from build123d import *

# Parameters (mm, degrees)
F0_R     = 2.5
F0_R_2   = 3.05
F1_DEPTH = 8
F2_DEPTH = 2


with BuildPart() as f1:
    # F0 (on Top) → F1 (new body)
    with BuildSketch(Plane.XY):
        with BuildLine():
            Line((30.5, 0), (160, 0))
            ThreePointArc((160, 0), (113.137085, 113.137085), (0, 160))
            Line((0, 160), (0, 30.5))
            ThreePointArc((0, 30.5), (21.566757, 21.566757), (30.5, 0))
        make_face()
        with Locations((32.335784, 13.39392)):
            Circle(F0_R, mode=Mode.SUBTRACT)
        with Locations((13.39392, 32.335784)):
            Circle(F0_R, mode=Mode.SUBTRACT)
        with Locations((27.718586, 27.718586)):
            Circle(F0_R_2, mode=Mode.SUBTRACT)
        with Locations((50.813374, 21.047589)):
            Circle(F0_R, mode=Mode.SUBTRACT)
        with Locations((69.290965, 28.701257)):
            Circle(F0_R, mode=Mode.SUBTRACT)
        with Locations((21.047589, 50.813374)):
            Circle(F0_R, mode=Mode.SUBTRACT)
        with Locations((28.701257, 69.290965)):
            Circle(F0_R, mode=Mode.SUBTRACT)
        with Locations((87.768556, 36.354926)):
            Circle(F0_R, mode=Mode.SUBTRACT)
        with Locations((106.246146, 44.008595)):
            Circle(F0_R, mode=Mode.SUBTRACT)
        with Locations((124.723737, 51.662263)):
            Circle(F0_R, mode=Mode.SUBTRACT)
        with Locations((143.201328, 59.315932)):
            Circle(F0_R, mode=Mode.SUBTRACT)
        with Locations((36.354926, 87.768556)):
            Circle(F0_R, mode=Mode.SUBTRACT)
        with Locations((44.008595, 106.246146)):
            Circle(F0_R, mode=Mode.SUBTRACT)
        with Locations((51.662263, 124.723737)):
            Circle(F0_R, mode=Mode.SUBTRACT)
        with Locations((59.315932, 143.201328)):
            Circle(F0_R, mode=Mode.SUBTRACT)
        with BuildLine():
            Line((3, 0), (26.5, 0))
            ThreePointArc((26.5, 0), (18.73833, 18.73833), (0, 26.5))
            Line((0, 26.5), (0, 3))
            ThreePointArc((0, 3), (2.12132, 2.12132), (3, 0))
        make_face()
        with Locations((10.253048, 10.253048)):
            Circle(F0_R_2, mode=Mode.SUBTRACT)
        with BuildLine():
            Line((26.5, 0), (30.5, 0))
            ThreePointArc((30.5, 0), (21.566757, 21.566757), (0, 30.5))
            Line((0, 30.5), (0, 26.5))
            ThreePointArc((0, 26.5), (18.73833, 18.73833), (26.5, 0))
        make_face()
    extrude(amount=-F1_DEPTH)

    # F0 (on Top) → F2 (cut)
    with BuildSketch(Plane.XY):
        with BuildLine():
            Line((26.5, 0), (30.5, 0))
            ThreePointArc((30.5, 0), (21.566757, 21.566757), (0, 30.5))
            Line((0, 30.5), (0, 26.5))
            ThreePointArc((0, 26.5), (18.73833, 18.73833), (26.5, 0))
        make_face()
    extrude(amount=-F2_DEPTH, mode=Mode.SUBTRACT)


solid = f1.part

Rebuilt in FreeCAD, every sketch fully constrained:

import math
import FreeCAD as App
import Part
import Sketcher
Q = App.Units.Quantity

doc = App.newDocument("Part")
body = doc.addObject("PartDesign::Body", "Body")

sketch1 = body.newObject("Sketcher::SketchObject", "Sketch")
sketch1.AttachmentSupport = (doc.getObject("XY_Plane"), [""])
sketch1.MapMode = "FlatFace"
sketch1.addGeometry([
    Part.ArcOfCircle(Part.Circle(App.Vector(0, 0, 0), App.Vector(0, 0, 1), 160), math.radians(0), math.radians(90)),
    Part.LineSegment(App.Vector(0, 160, 0), App.Vector(0, 3, 0)),
    Part.ArcOfCircle(Part.Circle(App.Vector(0, 0, 0), App.Vector(0, 0, 1), 3), math.radians(0), math.radians(90)),
    Part.LineSegment(App.Vector(3, 0, 0), App.Vector(160, 0, 0)),
    Part.Circle(App.Vector(27.7, 27.7, 0), App.Vector(0, 0, 1), 3),
    Part.Circle(App.Vector(32.3, 13.4, 0), App.Vector(0, 0, 1), 2.5),
    Part.Circle(App.Vector(13.4, 32.3, 0), App.Vector(0, 0, 1), 2.5),
    Part.Circle(App.Vector(50.8, 21, 0), App.Vector(0, 0, 1), 2.5),
    Part.Circle(App.Vector(69.3, 28.7, 0), App.Vector(0, 0, 1), 2.5),
    Part.Circle(App.Vector(21, 50.8, 0), App.Vector(0, 0, 1), 2.5),
    Part.Circle(App.Vector(28.7, 69.3, 0), App.Vector(0, 0, 1), 2.5),
    Part.Circle(App.Vector(87.8, 36.4, 0), App.Vector(0, 0, 1), 2.5),
    Part.Circle(App.Vector(106.2, 44, 0), App.Vector(0, 0, 1), 2.5),
    Part.Circle(App.Vector(124.7, 51.7, 0), App.Vector(0, 0, 1), 2.5),
    Part.Circle(App.Vector(143.2, 59.3, 0), App.Vector(0, 0, 1), 2.5),
    Part.Circle(App.Vector(36.4, 87.8, 0), App.Vector(0, 0, 1), 2.5),
    Part.Circle(App.Vector(44, 106.2, 0), App.Vector(0, 0, 1), 2.5),
    Part.Circle(App.Vector(51.7, 124.7, 0), App.Vector(0, 0, 1), 2.5),
    Part.Circle(App.Vector(59.3, 143.2, 0), App.Vector(0, 0, 1), 2.5),
    Part.Circle(App.Vector(10.3, 10.3, 0), App.Vector(0, 0, 1), 3),
], False)
sketch1.addConstraint([
    Sketcher.Constraint("Coincident", 0, 2, 1, 1),
    Sketcher.Constraint("Coincident", 1, 2, 2, 2),
    Sketcher.Constraint("Coincident", 2, 1, 3, 1),
    Sketcher.Constraint("Coincident", 3, 2, 0, 1),
    Sketcher.Constraint("Vertical", 1),
    Sketcher.Constraint("Horizontal", 3),
    Sketcher.Constraint("Coincident", 0, 3, -1, 1),
    Sketcher.Constraint("Coincident", 2, 3, -1, 1),
    Sketcher.Constraint("Equal", 5, 6),
    Sketcher.Constraint("Equal", 6, 7),
    Sketcher.Constraint("Equal", 7, 8),
    Sketcher.Constraint("Equal", 8, 9),
    Sketcher.Constraint("Equal", 9, 10),
    Sketcher.Constraint("Equal", 10, 11),
    Sketcher.Constraint("Equal", 11, 12),
    Sketcher.Constraint("Equal", 12, 13),
    Sketcher.Constraint("Equal", 13, 14),
    Sketcher.Constraint("Equal", 14, 15),
    Sketcher.Constraint("Equal", 15, 16),
    Sketcher.Constraint("Equal", 16, 17),
    Sketcher.Constraint("Equal", 17, 18),
    Sketcher.Constraint("Equal", 4, 19),
    Sketcher.Constraint("PointOnObject", 0, 2, -2),
    Sketcher.Constraint("PointOnObject", 2, 1, -1),
    Sketcher.Constraint("Diameter", 5, Q("5 mm")),
    Sketcher.Constraint("Radius", 0, Q("160 mm")),
    Sketcher.Constraint("Radius", 2, Q("3.000001 mm")),
    Sketcher.Constraint("Diameter", 4, Q("6.1 mm")),
    Sketcher.Constraint("DistanceX", 10, 3, 11, 3, Q("59.067299 mm")),
    Sketcher.Constraint("DistanceY", 13, 3, 10, 3, Q("17.628702 mm")),
    Sketcher.Constraint("DistanceY", 8, 3, 15, 3, Q("59.067299 mm")),
    Sketcher.Constraint("DistanceY", -1, 1, 5, 3, Q("13.39392 mm")),
    Sketcher.Constraint("DistanceX", -1, 1, 6, 3, Q("13.39392 mm")),
    Sketcher.Constraint("DistanceY", -1, 1, 7, 3, Q("21.047589 mm")),
    Sketcher.Constraint("DistanceX", -1, 1, 9, 3, Q("21.047589 mm")),
    Sketcher.Constraint("DistanceY", -1, 1, 14, 3, Q("59.315932 mm")),
    Sketcher.Constraint("DistanceX", -1, 1, 18, 3, Q("59.315932 mm")),
    Sketcher.Constraint("DistanceX", 5, 3, 7, 3, Q("18.47759 mm")),
    Sketcher.Constraint("DistanceX", 4, 3, 7, 3, Q("23.094788 mm")),
    Sketcher.Constraint("DistanceX", 7, 3, 8, 3, Q("18.477591 mm")),
    Sketcher.Constraint("DistanceY", 4, 3, 8, 3, Q("0.982671 mm")),
    Sketcher.Constraint("DistanceY", 6, 3, 9, 3, Q("18.47759 mm")),
    Sketcher.Constraint("DistanceY", 4, 3, 9, 3, Q("23.094788 mm")),
    Sketcher.Constraint("DistanceY", 9, 3, 10, 3, Q("18.477591 mm")),
    Sketcher.Constraint("DistanceX", 4, 3, 10, 3, Q("0.982671 mm")),
    Sketcher.Constraint("DistanceY", 8, 3, 11, 3, Q("7.653669 mm")),
    Sketcher.Constraint("DistanceX", 11, 3, 12, 3, Q("18.47759 mm")),
    Sketcher.Constraint("DistanceY", 11, 3, 12, 3, Q("7.653669 mm")),
    Sketcher.Constraint("DistanceX", 12, 3, 13, 3, Q("18.477591 mm")),
    Sketcher.Constraint("DistanceX", 13, 3, 14, 3, Q("18.477591 mm")),
    Sketcher.Constraint("DistanceY", 13, 3, 14, 3, Q("7.653669 mm")),
    Sketcher.Constraint("DistanceX", 10, 3, 15, 3, Q("7.653669 mm")),
    Sketcher.Constraint("DistanceX", 15, 3, 16, 3, Q("7.653669 mm")),
    Sketcher.Constraint("DistanceY", 15, 3, 16, 3, Q("18.47759 mm")),
    Sketcher.Constraint("DistanceX", 16, 3, 17, 3, Q("7.653668 mm")),
    Sketcher.Constraint("DistanceY", 16, 3, 17, 3, Q("18.477591 mm")),
    Sketcher.Constraint("DistanceX", 17, 3, 18, 3, Q("7.653669 mm")),
    Sketcher.Constraint("DistanceY", 17, 3, 18, 3, Q("18.477591 mm")),
    Sketcher.Constraint("DistanceX", 2, 3, 19, 3, Q("10.253049 mm")),
    Sketcher.Constraint("DistanceY", 2, 3, 19, 3, Q("10.253049 mm")),
])
pad1 = body.newObject("PartDesign::Pad", "Pad")
pad1.Profile = sketch1
pad1.Length = 8
pad1.Reversed = True

sketch2 = body.newObject("Sketcher::SketchObject", "Sketch001")
sketch2.AttachmentSupport = (doc.getObject("XY_Plane"), [""])
sketch2.MapMode = "FlatFace"
sketch2.addGeometry([
    Part.LineSegment(App.Vector(26.5, 0, 0), App.Vector(30.5, 0, 0)),
    Part.ArcOfCircle(Part.Circle(App.Vector(0, 0, 0), App.Vector(0, 0, 1), 30.5), math.radians(0), math.radians(90)),
    Part.LineSegment(App.Vector(0, 30.5, 0), App.Vector(0, 26.5, 0)),
    Part.ArcOfCircle(Part.Circle(App.Vector(0, 0, 0), App.Vector(0, 0, 1), 26.5), math.radians(0), math.radians(90)),
], False)
sketch2.addConstraint([
    Sketcher.Constraint("Coincident", 0, 2, 1, 1),
    Sketcher.Constraint("Coincident", 1, 2, 2, 1),
    Sketcher.Constraint("Coincident", 2, 2, 3, 2),
    Sketcher.Constraint("Coincident", 3, 1, 0, 1),
    Sketcher.Constraint("Horizontal", 0),
    Sketcher.Constraint("Vertical", 2),
    Sketcher.Constraint("Coincident", 1, 3, -1, 1),
    Sketcher.Constraint("Coincident", 3, 3, -1, 1),
    Sketcher.Constraint("PointOnObject", 0, 2, -1),
    Sketcher.Constraint("PointOnObject", 1, 2, -2),
    Sketcher.Constraint("Radius", 1, Q("30.499999 mm")),
    Sketcher.Constraint("Radius", 3, Q("26.499999 mm")),
])
pocket1 = body.newObject("PartDesign::Pocket", "Pocket")
pocket1.Profile = sketch2
pocket1.Length = 2

doc.recompute()
